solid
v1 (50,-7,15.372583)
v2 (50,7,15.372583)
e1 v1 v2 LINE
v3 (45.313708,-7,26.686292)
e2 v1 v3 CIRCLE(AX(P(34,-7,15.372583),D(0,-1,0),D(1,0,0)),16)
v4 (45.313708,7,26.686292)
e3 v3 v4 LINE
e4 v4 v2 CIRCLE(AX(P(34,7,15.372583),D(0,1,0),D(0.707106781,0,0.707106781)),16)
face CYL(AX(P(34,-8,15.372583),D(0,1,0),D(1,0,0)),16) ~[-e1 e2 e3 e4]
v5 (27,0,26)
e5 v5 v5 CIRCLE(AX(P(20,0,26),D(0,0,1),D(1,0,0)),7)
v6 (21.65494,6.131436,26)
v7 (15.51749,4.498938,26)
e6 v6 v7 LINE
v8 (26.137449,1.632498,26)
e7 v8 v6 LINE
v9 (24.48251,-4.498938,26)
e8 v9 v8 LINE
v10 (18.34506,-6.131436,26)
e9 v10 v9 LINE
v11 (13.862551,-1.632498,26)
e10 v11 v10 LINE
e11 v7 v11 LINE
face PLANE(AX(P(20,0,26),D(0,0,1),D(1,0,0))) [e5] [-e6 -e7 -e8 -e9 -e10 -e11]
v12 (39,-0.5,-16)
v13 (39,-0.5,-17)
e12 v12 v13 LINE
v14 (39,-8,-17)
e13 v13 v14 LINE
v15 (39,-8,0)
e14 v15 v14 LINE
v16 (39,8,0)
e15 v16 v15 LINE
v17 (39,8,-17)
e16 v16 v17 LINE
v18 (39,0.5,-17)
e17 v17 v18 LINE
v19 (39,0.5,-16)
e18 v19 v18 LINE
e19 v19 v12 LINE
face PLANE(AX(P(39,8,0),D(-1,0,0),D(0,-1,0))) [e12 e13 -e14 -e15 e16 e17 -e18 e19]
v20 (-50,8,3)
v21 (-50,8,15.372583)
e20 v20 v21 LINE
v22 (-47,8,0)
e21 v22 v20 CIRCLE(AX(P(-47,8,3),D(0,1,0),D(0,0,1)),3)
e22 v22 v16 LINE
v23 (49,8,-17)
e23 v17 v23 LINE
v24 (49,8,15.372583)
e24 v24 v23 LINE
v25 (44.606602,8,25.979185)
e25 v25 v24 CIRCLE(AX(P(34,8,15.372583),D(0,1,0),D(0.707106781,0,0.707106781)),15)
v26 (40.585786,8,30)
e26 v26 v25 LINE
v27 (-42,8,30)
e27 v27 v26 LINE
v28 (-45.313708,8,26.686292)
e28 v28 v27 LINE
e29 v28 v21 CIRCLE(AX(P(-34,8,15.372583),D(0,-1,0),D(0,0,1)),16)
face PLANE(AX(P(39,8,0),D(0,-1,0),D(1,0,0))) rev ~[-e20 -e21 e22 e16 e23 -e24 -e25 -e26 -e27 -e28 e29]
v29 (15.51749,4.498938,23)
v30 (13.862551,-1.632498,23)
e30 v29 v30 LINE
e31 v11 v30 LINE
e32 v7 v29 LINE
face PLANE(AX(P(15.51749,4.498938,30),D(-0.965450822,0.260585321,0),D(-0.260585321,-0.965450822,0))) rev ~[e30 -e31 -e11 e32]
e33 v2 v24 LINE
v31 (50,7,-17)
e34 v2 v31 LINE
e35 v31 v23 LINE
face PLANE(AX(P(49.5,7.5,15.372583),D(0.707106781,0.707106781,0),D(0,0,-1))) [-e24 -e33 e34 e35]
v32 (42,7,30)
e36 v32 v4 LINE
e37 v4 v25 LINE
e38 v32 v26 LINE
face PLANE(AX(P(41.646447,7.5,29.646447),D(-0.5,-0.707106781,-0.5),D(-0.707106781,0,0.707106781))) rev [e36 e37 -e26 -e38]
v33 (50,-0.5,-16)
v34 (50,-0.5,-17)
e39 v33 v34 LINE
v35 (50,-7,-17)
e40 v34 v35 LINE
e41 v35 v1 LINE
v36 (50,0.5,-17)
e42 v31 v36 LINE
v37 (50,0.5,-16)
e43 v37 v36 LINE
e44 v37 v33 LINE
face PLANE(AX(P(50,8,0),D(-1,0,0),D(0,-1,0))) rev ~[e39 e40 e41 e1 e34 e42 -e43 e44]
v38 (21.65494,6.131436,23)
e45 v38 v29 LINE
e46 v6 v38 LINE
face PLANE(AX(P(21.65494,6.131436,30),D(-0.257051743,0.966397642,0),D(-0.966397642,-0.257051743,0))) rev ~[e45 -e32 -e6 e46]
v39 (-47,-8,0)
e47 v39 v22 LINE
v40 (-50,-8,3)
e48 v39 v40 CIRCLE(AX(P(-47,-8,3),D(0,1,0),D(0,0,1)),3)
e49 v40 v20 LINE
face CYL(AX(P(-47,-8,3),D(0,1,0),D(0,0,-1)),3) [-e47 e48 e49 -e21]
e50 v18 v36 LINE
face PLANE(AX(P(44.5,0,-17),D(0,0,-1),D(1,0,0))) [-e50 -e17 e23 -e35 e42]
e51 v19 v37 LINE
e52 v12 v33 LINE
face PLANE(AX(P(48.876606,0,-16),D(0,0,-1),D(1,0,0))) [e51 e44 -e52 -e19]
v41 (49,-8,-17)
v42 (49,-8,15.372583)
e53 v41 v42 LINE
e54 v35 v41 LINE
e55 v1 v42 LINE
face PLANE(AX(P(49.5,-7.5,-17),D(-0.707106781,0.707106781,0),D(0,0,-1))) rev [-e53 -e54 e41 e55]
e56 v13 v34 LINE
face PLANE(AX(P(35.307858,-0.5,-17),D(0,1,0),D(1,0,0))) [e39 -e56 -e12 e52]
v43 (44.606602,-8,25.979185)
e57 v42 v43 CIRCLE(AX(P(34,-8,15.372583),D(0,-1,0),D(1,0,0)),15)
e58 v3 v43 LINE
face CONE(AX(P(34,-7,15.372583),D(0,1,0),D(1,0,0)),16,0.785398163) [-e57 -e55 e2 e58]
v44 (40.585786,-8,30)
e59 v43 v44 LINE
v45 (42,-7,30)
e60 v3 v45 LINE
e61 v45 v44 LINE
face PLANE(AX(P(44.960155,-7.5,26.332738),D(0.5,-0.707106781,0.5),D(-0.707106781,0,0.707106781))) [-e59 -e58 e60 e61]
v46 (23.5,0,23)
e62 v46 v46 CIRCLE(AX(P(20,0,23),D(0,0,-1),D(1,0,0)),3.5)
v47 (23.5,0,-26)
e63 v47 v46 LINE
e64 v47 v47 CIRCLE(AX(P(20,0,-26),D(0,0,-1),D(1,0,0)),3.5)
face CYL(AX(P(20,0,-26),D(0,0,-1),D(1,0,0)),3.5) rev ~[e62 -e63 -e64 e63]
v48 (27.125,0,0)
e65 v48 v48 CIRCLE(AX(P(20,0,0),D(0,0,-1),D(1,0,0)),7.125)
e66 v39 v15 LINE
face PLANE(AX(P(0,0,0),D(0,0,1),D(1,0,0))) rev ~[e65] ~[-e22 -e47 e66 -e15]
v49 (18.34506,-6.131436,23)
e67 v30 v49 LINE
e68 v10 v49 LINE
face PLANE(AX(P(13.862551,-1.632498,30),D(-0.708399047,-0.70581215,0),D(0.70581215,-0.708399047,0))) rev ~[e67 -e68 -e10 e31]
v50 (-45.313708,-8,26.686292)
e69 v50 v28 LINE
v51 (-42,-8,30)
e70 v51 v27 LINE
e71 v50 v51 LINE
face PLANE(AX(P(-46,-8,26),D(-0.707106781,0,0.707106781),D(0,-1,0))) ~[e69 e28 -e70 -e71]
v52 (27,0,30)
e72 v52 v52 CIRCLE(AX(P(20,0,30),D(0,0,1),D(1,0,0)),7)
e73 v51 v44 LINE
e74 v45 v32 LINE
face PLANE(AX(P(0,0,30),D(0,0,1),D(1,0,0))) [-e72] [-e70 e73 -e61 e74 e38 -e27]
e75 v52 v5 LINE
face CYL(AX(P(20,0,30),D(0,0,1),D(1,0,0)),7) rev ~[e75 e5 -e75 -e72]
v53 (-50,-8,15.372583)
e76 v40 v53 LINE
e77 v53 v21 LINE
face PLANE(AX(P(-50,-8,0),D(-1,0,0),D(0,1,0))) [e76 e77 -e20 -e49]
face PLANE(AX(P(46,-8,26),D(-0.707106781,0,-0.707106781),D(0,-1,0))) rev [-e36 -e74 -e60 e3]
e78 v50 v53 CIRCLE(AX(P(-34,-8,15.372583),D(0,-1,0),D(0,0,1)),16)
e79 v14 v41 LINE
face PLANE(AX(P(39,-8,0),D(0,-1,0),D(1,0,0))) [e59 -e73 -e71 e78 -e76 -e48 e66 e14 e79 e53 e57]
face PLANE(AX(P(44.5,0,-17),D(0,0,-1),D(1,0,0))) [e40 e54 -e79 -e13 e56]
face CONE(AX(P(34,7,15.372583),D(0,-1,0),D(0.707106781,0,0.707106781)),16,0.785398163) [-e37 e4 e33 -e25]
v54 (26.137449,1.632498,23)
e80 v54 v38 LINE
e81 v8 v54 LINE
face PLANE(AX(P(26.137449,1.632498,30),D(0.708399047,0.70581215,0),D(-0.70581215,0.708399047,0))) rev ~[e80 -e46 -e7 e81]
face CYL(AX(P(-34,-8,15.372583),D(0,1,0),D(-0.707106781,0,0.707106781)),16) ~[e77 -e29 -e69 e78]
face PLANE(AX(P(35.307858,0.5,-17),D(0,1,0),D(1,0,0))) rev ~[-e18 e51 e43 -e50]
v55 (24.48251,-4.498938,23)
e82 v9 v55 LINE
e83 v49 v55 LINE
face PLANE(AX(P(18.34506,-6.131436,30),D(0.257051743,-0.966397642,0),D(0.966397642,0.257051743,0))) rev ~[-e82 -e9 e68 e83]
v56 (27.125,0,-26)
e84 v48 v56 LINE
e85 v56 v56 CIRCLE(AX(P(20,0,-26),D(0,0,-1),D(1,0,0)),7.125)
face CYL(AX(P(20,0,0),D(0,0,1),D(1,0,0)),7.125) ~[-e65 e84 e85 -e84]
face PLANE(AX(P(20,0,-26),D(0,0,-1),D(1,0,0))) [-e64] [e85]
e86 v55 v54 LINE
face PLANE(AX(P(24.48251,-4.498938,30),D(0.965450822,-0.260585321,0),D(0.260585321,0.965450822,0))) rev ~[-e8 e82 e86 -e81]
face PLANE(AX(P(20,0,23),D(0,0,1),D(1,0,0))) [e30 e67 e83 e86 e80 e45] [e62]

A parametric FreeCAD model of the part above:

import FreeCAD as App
import Part
import Sketcher
Q = App.Units.Quantity


def edges_at(feature, points):
    """Names of the edges that pass closest to the given points."""
    edges = feature.Shape.Edges
    near = lambda p: min(range(len(edges)), key=lambda i: edges[i].distToShape(Part.Vertex(*p))[0])
    return sorted({f"Edge{near(p) + 1}" for p in points})


def add_polygon(sketch, points):
    """Adds a closed chain of lines whose ends are joined by coincident constraints."""
    first, n = sketch.GeometryCount, len(points)
    for a, b in zip(points, points[1:] + points[:1]):
        sketch.addGeometry(Part.LineSegment(App.Vector(*a, 0), App.Vector(*b, 0)), False)
    for i in range(n):
        sketch.addConstraint(Sketcher.Constraint("Coincident", first + i, 2, first + (i + 1) % n, 1))

doc = App.newDocument("Part")
params = doc.addObject("Spreadsheet::Sheet", "Params")
for row, (alias, value) in enumerate([
    ("sketch1_width", "100 mm"),
    ("sketch1_height", "16 mm"),
    ("pad1_length", "30 mm"),
    ("sketch2_diameter", "14.25 mm"),
    ("pad2_length", "26 mm"),
    ("sketch3_width", "11 mm"),
    ("sketch3_height", "16 mm"),
    ("pad3_length", "17 mm"),
    ("sketch4_diameter", "7 mm"),
    ("sketch5_diameter", "14 mm"),
    ("pocket2_length", "4 mm"),
    ("pocket3_length", "7 mm"),
    ("sketch7_height", "1 mm"),
    ("pocket4_length", "1 mm"),
    ("chamfer_size", "8 mm"),
    ("fillet_radius", "16 mm"),
    ("fillet2_radius", "3 mm"),
    ("chamfer2_size", "1 mm"),
    ("chamfer3_size", "1 mm"),
], start=1):
    params.set(f"A{row}", alias)
    params.set(f"B{row}", "=" + value)
    params.setAlias(f"B{row}", alias)

body = doc.addObject("PartDesign::Body", "Body")

sketch1 = body.newObject("Sketcher::SketchObject", "Sketch")
sketch1.AttachmentSupport = (doc.getObject("XY_Plane"), [""])
sketch1.MapMode = "FlatFace"
add_polygon(sketch1, [(-50, 8), (-50, -8), (50, -8), (50, 8)])
sketch1.addConstraint(Sketcher.Constraint("Vertical", 0))
sketch1.addConstraint(Sketcher.Constraint("Horizontal", 1))
sketch1.addConstraint(Sketcher.Constraint("Vertical", 2))
sketch1.addConstraint(Sketcher.Constraint("Horizontal", 3))
sketch1.addConstraint(Sketcher.Constraint("Symmetric", 0, 2, 2, 2, -1, 1))
sketch1.addConstraint(Sketcher.Constraint("DistanceX", 1, 1, 1, 2, Q("100 mm")))
sketch1.addConstraint(Sketcher.Constraint("DistanceY", 0, 2, 0, 1, Q("16 mm")))
sketch1.setExpression("Constraints[9]", "Params.sketch1_width")
sketch1.setExpression("Constraints[10]", "Params.sketch1_height")
pad1 = body.newObject("PartDesign::Pad", "Pad")
pad1.Profile = sketch1
pad1.setExpression("Length", "Params.pad1_length")

sketch2 = body.newObject("Sketcher::SketchObject", "Sketch001")
sketch2.AttachmentSupport = (doc.getObject("XY_Plane"), [""])
sketch2.MapMode = "FlatFace"
sketch2.addGeometry(Part.Circle(App.Vector(20, 0, 0), App.Vector(0, 0, 1), 7), False)
sketch2.addConstraint(Sketcher.Constraint("PointOnObject", 0, 3, -1))
sketch2.addConstraint(Sketcher.Constraint("Diameter", 0, Q("14.25 mm")))
sketch2.addConstraint(Sketcher.Constraint("DistanceX", -1, 1, 0, 3, Q("20 mm")))
sketch2.setExpression("Constraints[1]", "Params.sketch2_diameter")
pad2 = body.newObject("PartDesign::Pad", "Pad001")
pad2.Profile = sketch2
pad2.setExpression("Length", "Params.pad2_length")
pad2.Reversed = True

sketch3 = body.newObject("Sketcher::SketchObject", "Sketch002")
sketch3.AttachmentSupport = (doc.getObject("XY_Plane"), [""])
sketch3.MapMode = "FlatFace"
add_polygon(sketch3, [(39, -8), (39, 8), (50, 8), (50, -8)])
sketch3.addConstraint(Sketcher.Constraint("Vertical", 0))
sketch3.addConstraint(Sketcher.Constraint("Horizontal", 1))
sketch3.addConstraint(Sketcher.Constraint("Vertical", 2))
sketch3.addConstraint(Sketcher.Constraint("Horizontal", 3))
sketch3.addConstraint(Sketcher.Constraint("DistanceX", 1, 1, 1, 2, Q("11 mm")))
sketch3.addConstraint(Sketcher.Constraint("DistanceY", 0, 1, 0, 2, Q("16 mm")))
sketch3.addConstraint(Sketcher.Constraint("DistanceX", -1, 1, 0, 2, Q("39 mm")))
sketch3.addConstraint(Sketcher.Constraint("DistanceY", -1, 1, 0, 2, Q("8 mm")))
sketch3.setExpression("Constraints[8]", "Params.sketch3_width")
sketch3.setExpression("Constraints[9]", "Params.sketch3_height")
pad3 = body.newObject("PartDesign::Pad", "Pad002")
pad3.Profile = sketch3
pad3.setExpression("Length", "Params.pad3_length")
pad3.Reversed = True

sketch4 = body.newObject("Sketcher::SketchObject", "Sketch003")
sketch4.AttachmentSupport = (doc.getObject("XY_Plane"), [""])
sketch4.MapMode = "FlatFace"
sketch4.AttachmentOffset = App.Placement(App.Vector(0, 0, -26), App.Rotation())
sketch4.addGeometry(Part.Circle(App.Vector(20, 0, 0), App.Vector(0, 0, 1), 3.5), False)
sketch4.addConstraint(Sketcher.Constraint("PointOnObject", 0, 3, -1))
sketch4.addConstraint(Sketcher.Constraint("Diameter", 0, Q("7 mm")))
sketch4.addConstraint(Sketcher.Constraint("DistanceX", -1, 1, 0, 3, Q("20 mm")))
sketch4.setExpression("Constraints[1]", "Params.sketch4_diameter")
pocket1 = body.newObject("PartDesign::Pocket", "Pocket")
pocket1.Profile = sketch4
pocket1.Type = "ThroughAll"
pocket1.Reversed = True

sketch5 = body.newObject("Sketcher::SketchObject", "Sketch004")
sketch5.AttachmentSupport = (doc.getObject("XY_Plane"), [""])
sketch5.MapMode = "FlatFace"
sketch5.AttachmentOffset = App.Placement(App.Vector(0, 0, 30), App.Rotation())
sketch5.addGeometry(Part.Circle(App.Vector(20, 0, 0), App.Vector(0, 0, 1), 7), False)
sketch5.addConstraint(Sketcher.Constraint("PointOnObject", 0, 3, -1))
sketch5.addConstraint(Sketcher.Constraint("Diameter", 0, Q("14 mm")))
sketch5.addConstraint(Sketcher.Constraint("DistanceX", -1, 1, 0, 3, Q("20 mm")))
sketch5.setExpression("Constraints[1]", "Params.sketch5_diameter")
pocket2 = body.newObject("PartDesign::Pocket", "Pocket001")
pocket2.Profile = sketch5
pocket2.setExpression("Length", "Params.pocket2_length")

sketch6 = body.newObject("Sketcher::SketchObject", "Sketch005")
sketch6.AttachmentSupport = (doc.getObject("XY_Plane"), [""])
sketch6.MapMode = "FlatFace"
sketch6.AttachmentOffset = App.Placement(App.Vector(0, 0, 30), App.Rotation())
add_polygon(sketch6, [(24, -4), (26, 2), (22, 6), (16, 4), (14, -2), (18, -6)])
sketch6.addConstraint(Sketcher.Constraint("Parallel", 0, 3))
sketch6.addConstraint(Sketcher.Constraint("Parallel", 1, 4))
sketch6.addConstraint(Sketcher.Constraint("Parallel", 2, 5))
sketch6.addConstraint(Sketcher.Constraint("Equal", 0, 1))
sketch6.addConstraint(Sketcher.Constraint("Equal", 1, 2))
sketch6.addConstraint(Sketcher.Constraint("Equal", 2, 3))
sketch6.addConstraint(Sketcher.Constraint("DistanceX", -1, 1, 0, 2, Q("26.137449 mm")))
sketch6.addConstraint(Sketcher.Constraint("DistanceX", -1, 1, 1, 2, Q("21.65494 mm")))
sketch6.addConstraint(Sketcher.Constraint("DistanceX", -1, 1, 2, 2, Q("15.51749 mm")))
sketch6.addConstraint(Sketcher.Constraint("DistanceX", -1, 1, 3, 2, Q("13.862551 mm")))
sketch6.addConstraint(Sketcher.Constraint("DistanceY", 0, 2, 2, 2, Q("2.86644 mm")))
sketch6.addConstraint(Sketcher.Constraint("DistanceY", -1, 1, 0, 2, Q("1.632498 mm")))
pocket3 = body.newObject("PartDesign::Pocket", "Pocket002")
pocket3.Profile = sketch6
pocket3.setExpression("Length", "Params.pocket3_length")

sketch7 = body.newObject("Sketcher::SketchObject", "Sketch006")
sketch7.AttachmentSupport = (doc.getObject("XY_Plane"), [""])
sketch7.MapMode = "FlatFace"
sketch7.AttachmentOffset = App.Placement(App.Vector(0, 0, -17), App.Rotation())
add_polygon(sketch7, [(35.3, -0.5), (35.3, 0.5), (62.4, 0.5), (62.4, -0.5)])
sketch7.addConstraint(Sketcher.Constraint("Vertical", 0))
sketch7.addConstraint(Sketcher.Constraint("Horizontal", 1))
sketch7.addConstraint(Sketcher.Constraint("Vertical", 2))
sketch7.addConstraint(Sketcher.Constraint("Horizontal", 3))
sketch7.addConstraint(Sketcher.Constraint("DistanceY", 0, 1, 0, 2, Q("1 mm")))
sketch7.addConstraint(Sketcher.Constraint("DistanceY", -1, 1, 0, 2, Q("0.5 mm")))
sketch7.addConstraint(Sketcher.Constraint("DistanceX", 1, 1, 1, 2, Q("27.137496 mm")))
sketch7.addConstraint(Sketcher.Constraint("DistanceX", -1, 1, 0, 2, Q("35.307858 mm")))
sketch7.setExpression("Constraints[8]", "Params.sketch7_height")
pocket4 = body.newObject("PartDesign::Pocket", "Pocket003")
pocket4.Profile = sketch7
pocket4.setExpression("Length", "Params.pocket4_length")
pocket4.Reversed = True
doc.recompute()

chamfer = body.newObject("PartDesign::Chamfer", "Chamfer")
chamfer.Base = (pocket4, edges_at(pocket4, [(50, 0, 30), (-50, 0, 30)]))
chamfer.setExpression("Size", "Params.chamfer_size")
doc.recompute()

fillet = body.newObject("PartDesign::Fillet", "Fillet")
fillet.Base = (chamfer, edges_at(chamfer, [(50, 0, 22), (-50, 0, 22)]))
fillet.setExpression("Radius", "Params.fillet_radius")
doc.recompute()

fillet2 = body.newObject("PartDesign::Fillet", "Fillet001")
fillet2.Base = (fillet, edges_at(fillet, [(-50, 0, 0)]))
fillet2.setExpression("Radius", "Params.fillet2_radius")
doc.recompute()

chamfer2 = body.newObject("PartDesign::Chamfer", "Chamfer001")
chamfer2.Base = (fillet2, edges_at(fillet2, [(50, 8, -0.814)]))
chamfer2.setExpression("Size", "Params.chamfer2_size")
doc.recompute()

chamfer3 = body.newObject("PartDesign::Chamfer", "Chamfer002")
chamfer3.Base = (chamfer2, edges_at(chamfer2, [(50, -8, -0.814)]))
chamfer3.setExpression("Size", "Params.chamfer3_size")

doc.recompute()
